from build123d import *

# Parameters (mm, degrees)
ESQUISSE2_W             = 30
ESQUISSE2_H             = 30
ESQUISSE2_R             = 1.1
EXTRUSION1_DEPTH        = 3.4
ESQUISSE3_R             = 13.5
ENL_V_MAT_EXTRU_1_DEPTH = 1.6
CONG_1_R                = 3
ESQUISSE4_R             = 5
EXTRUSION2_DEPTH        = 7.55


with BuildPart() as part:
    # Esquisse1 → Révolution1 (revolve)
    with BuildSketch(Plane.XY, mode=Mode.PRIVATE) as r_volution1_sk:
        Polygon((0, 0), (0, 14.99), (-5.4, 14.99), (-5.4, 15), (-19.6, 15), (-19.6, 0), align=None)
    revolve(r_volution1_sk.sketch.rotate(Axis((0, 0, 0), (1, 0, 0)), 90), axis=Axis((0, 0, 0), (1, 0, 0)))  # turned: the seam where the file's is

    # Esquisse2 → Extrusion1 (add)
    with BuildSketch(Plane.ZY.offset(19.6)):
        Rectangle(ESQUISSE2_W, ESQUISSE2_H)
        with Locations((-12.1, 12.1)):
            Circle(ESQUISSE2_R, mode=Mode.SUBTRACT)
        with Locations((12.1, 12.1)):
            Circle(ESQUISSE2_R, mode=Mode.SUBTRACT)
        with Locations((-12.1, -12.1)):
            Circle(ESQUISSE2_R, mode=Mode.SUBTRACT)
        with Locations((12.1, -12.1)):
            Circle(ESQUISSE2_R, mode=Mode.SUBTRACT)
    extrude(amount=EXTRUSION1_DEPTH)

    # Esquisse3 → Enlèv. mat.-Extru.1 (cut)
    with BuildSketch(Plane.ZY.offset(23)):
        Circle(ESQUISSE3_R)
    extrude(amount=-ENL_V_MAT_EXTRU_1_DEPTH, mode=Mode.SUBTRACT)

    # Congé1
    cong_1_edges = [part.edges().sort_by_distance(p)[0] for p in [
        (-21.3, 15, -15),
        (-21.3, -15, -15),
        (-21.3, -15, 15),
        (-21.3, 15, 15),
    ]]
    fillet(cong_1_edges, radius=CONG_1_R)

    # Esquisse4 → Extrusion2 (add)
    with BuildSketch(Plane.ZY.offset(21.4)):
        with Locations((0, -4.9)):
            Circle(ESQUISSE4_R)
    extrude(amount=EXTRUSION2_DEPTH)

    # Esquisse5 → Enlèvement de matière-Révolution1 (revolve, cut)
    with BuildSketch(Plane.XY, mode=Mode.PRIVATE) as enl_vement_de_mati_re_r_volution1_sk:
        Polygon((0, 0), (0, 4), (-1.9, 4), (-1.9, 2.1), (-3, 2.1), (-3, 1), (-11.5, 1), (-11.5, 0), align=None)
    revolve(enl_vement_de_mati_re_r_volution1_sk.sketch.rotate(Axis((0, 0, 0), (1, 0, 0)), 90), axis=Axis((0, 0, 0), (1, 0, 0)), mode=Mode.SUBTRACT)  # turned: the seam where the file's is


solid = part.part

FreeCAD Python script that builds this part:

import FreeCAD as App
import Part
import Sketcher

V = App.Vector
Q = App.Units.Quantity


def edges_at(feature, points):
    """Names of the edges that pass closest to the given points."""
    edges = feature.Shape.Edges
    near = lambda p: min(range(len(edges)), key=lambda i: edges[i].distToShape(Part.Vertex(*p))[0])
    return sorted({f"Edge{near(p) + 1}" for p in points})

doc = App.newDocument("Part")
body = doc.addObject("PartDesign::Body", "Body")

# Sketch on XY plane
sketch1 = body.newObject("Sketcher::SketchObject", "Sketch")
sketch1.AttachmentSupport = (doc.getObject("XY_Plane"), [""])
sketch1.MapMode = "FlatFace"
sketch1.addGeometry([
    Part.LineSegment(V(0, 0, 0), V(0, 14.99, 0)),  # 0
    Part.LineSegment(V(0, 14.99, 0), V(-5.4, 14.99, 0)),  # 1
    Part.LineSegment(V(-5.4, 14.99, 0), V(-5.4, 15, 0)),  # 2
    Part.LineSegment(V(-5.4, 15, 0), V(-19.6, 15, 0)),  # 3
    Part.LineSegment(V(-19.6, 15, 0), V(-19.6, 0, 0)),  # 4
    Part.LineSegment(V(-19.6, 0, 0), V(0, 0, 0)),  # 5
], False)
sketch1.addConstraint([
    Sketcher.Constraint("Coincident", 0, 2, 1, 1),
    Sketcher.Constraint("Coincident", 1, 2, 2, 1),
    Sketcher.Constraint("Coincident", 2, 2, 3, 1),
    Sketcher.Constraint("Coincident", 3, 2, 4, 1),
    Sketcher.Constraint("Coincident", 4, 2, 5, 1),
    Sketcher.Constraint("Coincident", 5, 2, 0, 1),
    Sketcher.Constraint("Vertical", 0),
    Sketcher.Constraint("Horizontal", 1),
    Sketcher.Constraint("Vertical", 2),
    Sketcher.Constraint("Horizontal", 3),
    Sketcher.Constraint("Vertical", 4),
    Sketcher.Constraint("Horizontal", 5),
    Sketcher.Constraint("Coincident", 5, 2, -1, 1),
    Sketcher.Constraint("DistanceY", 4, 2, 4, 1, Q("15 mm")),
    Sketcher.Constraint("DistanceX", 1, 2, 1, 1, Q("5.4 mm")),
    Sketcher.Constraint("DistanceX", 3, 2, 3, 1, Q("14.2 mm")),
    Sketcher.Constraint("DistanceY", 0, 1, 0, 2, Q("14.99 mm")),
])
revolution = body.newObject("PartDesign::Revolution", "Revolution")
revolution.Profile = sketch1
revolution.ReferenceAxis = (sketch1, ["H_Axis"])
revolution.Angle = 360

# Sketch on YZ plane
sketch2 = body.newObject("Sketcher::SketchObject", "Sketch001")
sketch2.AttachmentSupport = (doc.getObject("YZ_Plane"), [""])
sketch2.MapMode = "FlatFace"
sketch2.AttachmentOffset = App.Placement(V(0, 0, -19.6), App.Rotation())
sketch2.addGeometry([
    Part.LineSegment(V(15, -15, 0), V(-15, -15, 0)),  # 0
    Part.LineSegment(V(-15, -15, 0), V(-15, 15, 0)),  # 1
    Part.LineSegment(V(-15, 15, 0), V(15, 15, 0)),  # 2
    Part.LineSegment(V(15, 15, 0), V(15, -15, 0)),  # 3
    Part.Circle(V(-12.1, -12.1, 0), V(0, 0, 1), 1.1),  # 4
    Part.Circle(V(-12.1, 12.1, 0), V(0, 0, 1), 1.1),  # 5
    Part.Circle(V(12.1, -12.1, 0), V(0, 0, 1), 1.1),  # 6
    Part.Circle(V(12.1, 12.1, 0), V(0, 0, 1), 1.1),  # 7
], False)
sketch2.addConstraint([
    Sketcher.Constraint("Coincident", 0, 2, 1, 1),
    Sketcher.Constraint("Coincident", 1, 2, 2, 1),
    Sketcher.Constraint("Coincident", 2, 2, 3, 1),
    Sketcher.Constraint("Coincident", 3, 2, 0, 1),
    Sketcher.Constraint("Horizontal", 0),
    Sketcher.Constraint("Vertical", 1),
    Sketcher.Constraint("Horizontal", 2),
    Sketcher.Constraint("Vertical", 3),
    Sketcher.Constraint("Equal", 4, 5),
    Sketcher.Constraint("Equal", 5, 6),
    Sketcher.Constraint("Equal", 6, 7),
    Sketcher.Constraint("Symmetric", 5, 3, 6, 3, -1, 1),
    Sketcher.Constraint("Symmetric", 4, 3, 7, 3, -1, 1),
    Sketcher.Constraint("Symmetric", 0, 2, 2, 2, -1, 1),
    Sketcher.Constraint("Symmetric", 4, 3, 6, 3, -2),
    Sketcher.Constraint("Equal", 2, 1),
    Sketcher.Constraint("Diameter", 4, Q("2.2 mm")),
    Sketcher.Constraint("DistanceX", 0, 2, 0, 1, Q("30 mm")),
    Sketcher.Constraint("DistanceX", 4, 3, -1, 1, Q("12.1 mm")),
    Sketcher.Constraint("DistanceY", 4, 3, -1, 1, Q("12.1 mm")),
])
pad1 = body.newObject("PartDesign::Pad", "Pad")
pad1.Profile = sketch2
pad1.Length = 3.4
pad1.Reversed = True

# Sketch on YZ plane
sketch3 = body.newObject("Sketcher::SketchObject", "Sketch002")
sketch3.AttachmentSupport = (doc.getObject("YZ_Plane"), [""])
sketch3.MapMode = "FlatFace"
sketch3.AttachmentOffset = App.Placement(V(0, 0, -23), App.Rotation())
sketch3.addGeometry(Part.Circle(V(0, 0, 0), V(0, 0, 1), 13.5), False)
sketch3.addConstraint([
    Sketcher.Constraint("Coincident", 0, 3, -1, 1),
    Sketcher.Constraint("Diameter", 0, Q("27 mm")),
])
pocket1 = body.newObject("PartDesign::Pocket", "Pocket")
pocket1.Profile = sketch3
pocket1.Length = 1.6
pocket1.Reversed = True
doc.recompute()

fillet = body.newObject("PartDesign::Fillet", "Fillet")
fillet.Base = (pocket1, edges_at(pocket1, [
    (-21.3, 15, -15),
    (-21.3, -15, -15),
    (-21.3, -15, 15),
    (-21.3, 15, 15),
]))
fillet.Radius = 3

# Sketch on YZ plane
sketch4 = body.newObject("Sketcher::SketchObject", "Sketch003")
sketch4.AttachmentSupport = (doc.getObject("YZ_Plane"), [""])
sketch4.MapMode = "FlatFace"
sketch4.AttachmentOffset = App.Placement(V(0, 0, -21.4), App.Rotation())
sketch4.addGeometry(Part.Circle(V(-4.9, 0, 0), V(0, 0, 1), 5), False)
sketch4.addConstraint([
    Sketcher.Constraint("PointOnObject", 0, 3, -1),
    Sketcher.Constraint("Diameter", 0, Q("10 mm")),
    Sketcher.Constraint("DistanceX", 0, 3, -1, 1, Q("4.9 mm")),
])
pad2 = body.newObject("PartDesign::Pad", "Pad001")
pad2.Profile = sketch4
pad2.Length = 7.55
pad2.Reversed = True

# Sketch on XY plane
sketch5 = body.newObject("Sketcher::SketchObject", "Sketch004")
sketch5.AttachmentSupport = (doc.getObject("XY_Plane"), [""])
sketch5.MapMode = "FlatFace"
sketch5.addGeometry([
    Part.LineSegment(V(0, 0, 0), V(0, 4, 0)),  # 0
    Part.LineSegment(V(0, 4, 0), V(-1.9, 4, 0)),  # 1
    Part.LineSegment(V(-1.9, 4, 0), V(-1.9, 2.1, 0)),  # 2
    Part.LineSegment(V(-1.9, 2.1, 0), V(-3, 2.1, 0)),  # 3
    Part.LineSegment(V(-3, 2.1, 0), V(-3, 1, 0)),  # 4
    Part.LineSegment(V(-3, 1, 0), V(-11.5, 1, 0)),  # 5
    Part.LineSegment(V(-11.5, 1, 0), V(-11.5, 0, 0)),  # 6
    Part.LineSegment(V(-11.5, 0, 0), V(0, 0, 0)),  # 7
], False)
sketch5.addConstraint([
    Sketcher.Constraint("Coincident", 0, 2, 1, 1),
    Sketcher.Constraint("Coincident", 1, 2, 2, 1),
    Sketcher.Constraint("Coincident", 2, 2, 3, 1),
    Sketcher.Constraint("Coincident", 3, 2, 4, 1),
    Sketcher.Constraint("Coincident", 4, 2, 5, 1),
    Sketcher.Constraint("Coincident", 5, 2, 6, 1),
    Sketcher.Constraint("Coincident", 6, 2, 7, 1),
    Sketcher.Constraint("Coincident", 7, 2, 0, 1),
    Sketcher.Constraint("Vertical", 0),
    Sketcher.Constraint("Horizontal", 1),
    Sketcher.Constraint("Vertical", 2),
    Sketcher.Constraint("Horizontal", 3),
    Sketcher.Constraint("Vertical", 4),
    Sketcher.Constraint("Horizontal", 5),
    Sketcher.Constraint("Vertical", 6),
    Sketcher.Constraint("Horizontal", 7),
    Sketcher.Constraint("Coincident", 7, 2, -1, 1),
    Sketcher.Constraint("Equal", 1, 2),
    Sketcher.Constraint("Equal", 3, 4),
    Sketcher.Constraint("DistanceY", 0, 1, 0, 2, Q("4 mm")),
    Sketcher.Constraint("DistanceY", 6, 2, 6, 1, Q("1 mm")),
    Sketcher.Constraint("DistanceX", 1, 2, 1, 1, Q("1.9 mm")),
    Sketcher.Constraint("DistanceX", 5, 2, 5, 1, Q("8.5 mm")),
])
groove = body.newObject("PartDesign::Groove", "Groove")
groove.Profile = sketch5
groove.ReferenceAxis = (sketch5, ["H_Axis"])
groove.Angle = 360

doc.recompute()
